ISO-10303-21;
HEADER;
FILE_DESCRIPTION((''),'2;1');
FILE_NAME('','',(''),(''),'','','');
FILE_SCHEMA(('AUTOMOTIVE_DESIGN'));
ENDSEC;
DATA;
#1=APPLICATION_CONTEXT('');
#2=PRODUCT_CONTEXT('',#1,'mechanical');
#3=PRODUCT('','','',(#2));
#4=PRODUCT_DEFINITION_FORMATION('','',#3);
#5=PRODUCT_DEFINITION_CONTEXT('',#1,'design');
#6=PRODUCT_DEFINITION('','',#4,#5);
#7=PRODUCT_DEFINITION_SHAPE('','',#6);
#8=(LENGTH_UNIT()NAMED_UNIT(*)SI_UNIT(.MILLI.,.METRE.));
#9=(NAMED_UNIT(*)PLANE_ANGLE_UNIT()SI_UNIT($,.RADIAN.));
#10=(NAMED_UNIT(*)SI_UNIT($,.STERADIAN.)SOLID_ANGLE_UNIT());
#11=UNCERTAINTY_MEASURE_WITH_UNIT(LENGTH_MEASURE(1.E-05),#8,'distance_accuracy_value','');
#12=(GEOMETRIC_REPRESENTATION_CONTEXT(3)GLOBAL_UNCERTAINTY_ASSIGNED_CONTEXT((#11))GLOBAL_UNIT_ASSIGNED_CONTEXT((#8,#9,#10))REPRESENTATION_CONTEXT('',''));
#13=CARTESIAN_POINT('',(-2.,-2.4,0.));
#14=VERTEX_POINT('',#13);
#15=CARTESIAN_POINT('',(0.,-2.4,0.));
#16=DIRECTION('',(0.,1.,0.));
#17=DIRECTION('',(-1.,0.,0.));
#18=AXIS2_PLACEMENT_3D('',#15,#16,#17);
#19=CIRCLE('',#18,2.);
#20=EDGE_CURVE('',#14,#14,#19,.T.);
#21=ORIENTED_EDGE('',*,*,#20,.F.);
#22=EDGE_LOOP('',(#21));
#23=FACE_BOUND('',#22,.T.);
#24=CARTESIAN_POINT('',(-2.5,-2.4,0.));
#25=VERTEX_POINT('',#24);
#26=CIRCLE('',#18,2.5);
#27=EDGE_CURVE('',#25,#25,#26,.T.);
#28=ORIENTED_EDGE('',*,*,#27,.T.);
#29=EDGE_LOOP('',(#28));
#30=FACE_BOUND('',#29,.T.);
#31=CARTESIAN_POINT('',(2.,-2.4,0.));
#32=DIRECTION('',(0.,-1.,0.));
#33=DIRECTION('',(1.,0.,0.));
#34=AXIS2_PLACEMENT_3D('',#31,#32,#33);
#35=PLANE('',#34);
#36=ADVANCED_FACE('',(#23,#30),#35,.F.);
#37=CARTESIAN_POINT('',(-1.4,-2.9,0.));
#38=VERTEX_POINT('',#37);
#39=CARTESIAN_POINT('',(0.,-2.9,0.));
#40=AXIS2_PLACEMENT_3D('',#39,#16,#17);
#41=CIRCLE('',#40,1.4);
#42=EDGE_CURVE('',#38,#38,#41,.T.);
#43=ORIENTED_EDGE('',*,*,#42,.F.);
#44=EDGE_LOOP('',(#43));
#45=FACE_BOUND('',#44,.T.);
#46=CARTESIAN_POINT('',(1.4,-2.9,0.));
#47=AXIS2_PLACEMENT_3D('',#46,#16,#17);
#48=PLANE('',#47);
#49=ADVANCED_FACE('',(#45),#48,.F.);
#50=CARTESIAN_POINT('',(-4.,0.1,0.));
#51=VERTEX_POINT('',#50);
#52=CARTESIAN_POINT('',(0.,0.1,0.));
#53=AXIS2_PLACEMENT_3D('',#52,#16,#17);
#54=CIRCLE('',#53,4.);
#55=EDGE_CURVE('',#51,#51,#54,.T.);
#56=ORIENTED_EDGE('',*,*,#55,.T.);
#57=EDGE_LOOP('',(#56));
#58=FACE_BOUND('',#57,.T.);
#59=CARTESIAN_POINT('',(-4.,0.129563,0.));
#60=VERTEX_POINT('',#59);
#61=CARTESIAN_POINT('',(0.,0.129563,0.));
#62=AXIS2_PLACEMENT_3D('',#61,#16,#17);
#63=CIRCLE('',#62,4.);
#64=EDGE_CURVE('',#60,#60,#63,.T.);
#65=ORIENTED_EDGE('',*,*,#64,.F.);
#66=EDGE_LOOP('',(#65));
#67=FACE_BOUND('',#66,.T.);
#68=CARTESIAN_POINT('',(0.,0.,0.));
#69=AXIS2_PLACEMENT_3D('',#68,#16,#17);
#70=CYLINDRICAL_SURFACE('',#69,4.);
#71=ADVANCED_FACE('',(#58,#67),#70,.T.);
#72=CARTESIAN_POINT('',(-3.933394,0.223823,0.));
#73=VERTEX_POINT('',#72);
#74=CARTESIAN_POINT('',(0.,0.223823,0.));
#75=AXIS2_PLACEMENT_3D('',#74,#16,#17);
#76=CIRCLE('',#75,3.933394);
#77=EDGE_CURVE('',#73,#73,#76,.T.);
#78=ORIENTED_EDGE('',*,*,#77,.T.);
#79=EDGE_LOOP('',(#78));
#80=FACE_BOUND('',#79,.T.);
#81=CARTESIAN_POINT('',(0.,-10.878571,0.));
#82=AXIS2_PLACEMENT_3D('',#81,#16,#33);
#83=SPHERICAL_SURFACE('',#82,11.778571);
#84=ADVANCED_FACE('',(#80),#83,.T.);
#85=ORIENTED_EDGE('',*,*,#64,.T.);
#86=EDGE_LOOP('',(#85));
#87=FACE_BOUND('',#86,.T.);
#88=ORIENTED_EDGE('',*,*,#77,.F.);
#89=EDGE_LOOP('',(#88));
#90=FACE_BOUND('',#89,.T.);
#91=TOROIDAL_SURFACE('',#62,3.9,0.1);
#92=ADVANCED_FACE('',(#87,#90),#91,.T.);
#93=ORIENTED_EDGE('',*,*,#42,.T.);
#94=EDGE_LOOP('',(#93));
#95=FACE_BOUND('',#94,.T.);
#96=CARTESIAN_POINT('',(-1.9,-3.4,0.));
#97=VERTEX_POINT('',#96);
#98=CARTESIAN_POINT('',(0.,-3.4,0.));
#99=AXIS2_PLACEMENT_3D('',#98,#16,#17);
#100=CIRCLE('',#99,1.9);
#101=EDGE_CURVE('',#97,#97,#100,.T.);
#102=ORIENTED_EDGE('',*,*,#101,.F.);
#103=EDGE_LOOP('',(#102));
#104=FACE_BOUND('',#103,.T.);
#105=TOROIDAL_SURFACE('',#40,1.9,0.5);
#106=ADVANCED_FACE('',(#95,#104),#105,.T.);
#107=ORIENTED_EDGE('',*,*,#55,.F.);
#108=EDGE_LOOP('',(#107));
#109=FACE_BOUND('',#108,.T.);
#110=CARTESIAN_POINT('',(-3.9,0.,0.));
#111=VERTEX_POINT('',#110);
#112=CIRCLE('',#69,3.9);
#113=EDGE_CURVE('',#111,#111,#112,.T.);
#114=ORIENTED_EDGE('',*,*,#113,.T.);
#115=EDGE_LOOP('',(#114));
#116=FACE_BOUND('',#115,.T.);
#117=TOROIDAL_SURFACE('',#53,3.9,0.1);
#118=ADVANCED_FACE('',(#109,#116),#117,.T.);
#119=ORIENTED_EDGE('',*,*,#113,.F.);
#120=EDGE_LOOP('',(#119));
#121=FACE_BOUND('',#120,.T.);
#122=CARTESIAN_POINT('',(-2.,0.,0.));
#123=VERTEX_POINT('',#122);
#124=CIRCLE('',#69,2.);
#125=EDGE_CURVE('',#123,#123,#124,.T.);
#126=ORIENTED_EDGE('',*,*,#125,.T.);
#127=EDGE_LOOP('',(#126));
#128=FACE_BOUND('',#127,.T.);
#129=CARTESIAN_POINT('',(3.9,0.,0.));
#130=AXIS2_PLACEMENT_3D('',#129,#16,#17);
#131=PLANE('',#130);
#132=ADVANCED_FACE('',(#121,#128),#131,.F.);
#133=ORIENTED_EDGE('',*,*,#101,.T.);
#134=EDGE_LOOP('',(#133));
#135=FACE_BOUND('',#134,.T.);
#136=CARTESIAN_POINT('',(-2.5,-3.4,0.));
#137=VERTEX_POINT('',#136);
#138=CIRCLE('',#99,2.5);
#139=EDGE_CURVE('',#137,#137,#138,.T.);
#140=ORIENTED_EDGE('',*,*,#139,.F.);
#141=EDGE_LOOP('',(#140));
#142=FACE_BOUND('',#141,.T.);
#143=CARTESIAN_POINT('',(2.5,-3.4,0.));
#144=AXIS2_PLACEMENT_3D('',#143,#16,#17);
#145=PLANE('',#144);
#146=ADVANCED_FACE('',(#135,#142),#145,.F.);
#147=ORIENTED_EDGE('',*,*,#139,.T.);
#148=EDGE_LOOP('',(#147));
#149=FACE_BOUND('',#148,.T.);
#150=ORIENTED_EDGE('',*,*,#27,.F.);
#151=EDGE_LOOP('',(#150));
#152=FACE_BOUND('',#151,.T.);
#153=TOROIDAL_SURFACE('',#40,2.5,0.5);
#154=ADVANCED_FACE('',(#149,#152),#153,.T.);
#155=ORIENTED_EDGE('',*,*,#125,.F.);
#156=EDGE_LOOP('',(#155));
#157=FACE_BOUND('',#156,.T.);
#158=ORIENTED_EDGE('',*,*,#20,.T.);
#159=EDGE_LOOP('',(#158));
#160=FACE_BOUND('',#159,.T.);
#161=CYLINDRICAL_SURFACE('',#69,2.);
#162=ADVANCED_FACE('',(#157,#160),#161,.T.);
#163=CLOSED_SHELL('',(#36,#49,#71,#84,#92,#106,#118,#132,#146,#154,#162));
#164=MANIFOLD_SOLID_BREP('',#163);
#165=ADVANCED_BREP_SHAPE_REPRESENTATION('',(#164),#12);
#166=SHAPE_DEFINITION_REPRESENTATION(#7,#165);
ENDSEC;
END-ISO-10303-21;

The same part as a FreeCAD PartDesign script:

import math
import FreeCAD as App
import Part
import Sketcher

V = App.Vector

doc = App.newDocument("Part")
body = doc.addObject("PartDesign::Body", "Body")

# Sketch on XY plane
sketch1 = body.newObject("Sketcher::SketchObject", "Sketch")
sketch1.AttachmentSupport = (doc.getObject("XY_Plane"), [""])
sketch1.MapMode = "FlatFace"
sketch1.addGeometry([
    Part.LineSegment(V(4, 0.1, 0), V(4, 0.13, 0)),  # 0
    Part.ArcOfCircle(Part.Circle(V(3.9, 0.13, 0), V(0, 0, 1), 0.1), math.radians(0), math.radians(70)),  # 1
    Part.ArcOfCircle(Part.Circle(V(0, -10.879, 0), V(0, 0, 1), 11.779), math.radians(70.49), math.radians(90)),  # 2
    Part.LineSegment(V(0, 0.9, 0), V(0, -2.9, 0)),  # 3
    Part.LineSegment(V(0, -2.9, 0), V(1.4, -2.9, 0)),  # 4
    Part.ArcOfCircle(Part.Circle(V(1.9, -2.9, 0), V(0, 0, 1), 0.5), math.radians(180), math.radians(270)),  # 5
    Part.LineSegment(V(1.9, -3.4, 0), V(2.5, -3.4, 0)),  # 6
    Part.ArcOfCircle(Part.Circle(V(2.5, -2.9, 0), V(0, 0, 1), 0.5), math.radians(-90), math.radians(90)),  # 7
    Part.LineSegment(V(2.5, -2.4, 0), V(2, -2.4, 0)),  # 8
    Part.LineSegment(V(2, -2.4, 0), V(2, 0, 0)),  # 9
    Part.LineSegment(V(2, 0, 0), V(3.9, 0, 0)),  # 10
    Part.ArcOfCircle(Part.Circle(V(3.9, 0.1, 0), V(0, 0, 1), 0.1), math.radians(-90), math.radians(0)),  # 11
], False)
sketch1.addConstraint([
    Sketcher.Constraint("Tangent", 0, 2, 1, 1),
    Sketcher.Constraint("Tangent", 1, 2, 2, 1),
    Sketcher.Constraint("Coincident", 2, 2, 3, 1),
    Sketcher.Constraint("Coincident", 3, 2, 4, 1),
    Sketcher.Constraint("Coincident", 4, 2, 5, 1),
    Sketcher.Constraint("Tangent", 5, 2, 6, 1),
    Sketcher.Constraint("Tangent", 6, 2, 7, 1),
    Sketcher.Constraint("Tangent", 7, 2, 8, 1),
    Sketcher.Constraint("Coincident", 8, 2, 9, 1),
    Sketcher.Constraint("Coincident", 9, 2, 10, 1),
    Sketcher.Constraint("Tangent", 10, 2, 11, 1),
    Sketcher.Constraint("Tangent", 11, 2, 0, 1),
    Sketcher.Constraint("Vertical", 0),
    Sketcher.Constraint("Vertical", 3),
    Sketcher.Constraint("Horizontal", 4),
    Sketcher.Constraint("Horizontal", 6),
    Sketcher.Constraint("Horizontal", 8),
    Sketcher.Constraint("Vertical", 9),
    Sketcher.Constraint("Horizontal", 10),
    Sketcher.Constraint("Equal", 5, 7),
    Sketcher.Constraint("Equal", 1, 11),
    Sketcher.Constraint("PointOnObject", 2, 3, -2),
    Sketcher.Constraint("PointOnObject", 2, 2, -2),
    Sketcher.Constraint("PointOnObject", 9, 2, -1),
    Sketcher.Constraint("Horizontal", 7, 3, 3, 2),
    Sketcher.Constraint("Radius", 1, 0.1),
    Sketcher.Constraint("Radius", 5, 0.5),
    Sketcher.Constraint("DistanceX", 4, 1, 4, 2, 1.4),
    Sketcher.Constraint("DistanceX", 6, 1, 6, 2, 0.6),
    Sketcher.Constraint("DistanceX", 8, 2, 8, 1, 0.5),
    Sketcher.Constraint("DistanceX", 10, 1, 10, 2, 1.9),
    Sketcher.Constraint("DistanceY", 3, 2, 3, 1, 3.8),
    Sketcher.Constraint("DistanceY", 9, 1, 9, 2, 2.4),
    Sketcher.Constraint("Radius", 2, 11.778571),
])
revolution = body.newObject("PartDesign::Revolution", "Revolution")
revolution.Profile = sketch1
revolution.ReferenceAxis = (sketch1, ["V_Axis"])
revolution.Angle = 360

doc.recompute()
